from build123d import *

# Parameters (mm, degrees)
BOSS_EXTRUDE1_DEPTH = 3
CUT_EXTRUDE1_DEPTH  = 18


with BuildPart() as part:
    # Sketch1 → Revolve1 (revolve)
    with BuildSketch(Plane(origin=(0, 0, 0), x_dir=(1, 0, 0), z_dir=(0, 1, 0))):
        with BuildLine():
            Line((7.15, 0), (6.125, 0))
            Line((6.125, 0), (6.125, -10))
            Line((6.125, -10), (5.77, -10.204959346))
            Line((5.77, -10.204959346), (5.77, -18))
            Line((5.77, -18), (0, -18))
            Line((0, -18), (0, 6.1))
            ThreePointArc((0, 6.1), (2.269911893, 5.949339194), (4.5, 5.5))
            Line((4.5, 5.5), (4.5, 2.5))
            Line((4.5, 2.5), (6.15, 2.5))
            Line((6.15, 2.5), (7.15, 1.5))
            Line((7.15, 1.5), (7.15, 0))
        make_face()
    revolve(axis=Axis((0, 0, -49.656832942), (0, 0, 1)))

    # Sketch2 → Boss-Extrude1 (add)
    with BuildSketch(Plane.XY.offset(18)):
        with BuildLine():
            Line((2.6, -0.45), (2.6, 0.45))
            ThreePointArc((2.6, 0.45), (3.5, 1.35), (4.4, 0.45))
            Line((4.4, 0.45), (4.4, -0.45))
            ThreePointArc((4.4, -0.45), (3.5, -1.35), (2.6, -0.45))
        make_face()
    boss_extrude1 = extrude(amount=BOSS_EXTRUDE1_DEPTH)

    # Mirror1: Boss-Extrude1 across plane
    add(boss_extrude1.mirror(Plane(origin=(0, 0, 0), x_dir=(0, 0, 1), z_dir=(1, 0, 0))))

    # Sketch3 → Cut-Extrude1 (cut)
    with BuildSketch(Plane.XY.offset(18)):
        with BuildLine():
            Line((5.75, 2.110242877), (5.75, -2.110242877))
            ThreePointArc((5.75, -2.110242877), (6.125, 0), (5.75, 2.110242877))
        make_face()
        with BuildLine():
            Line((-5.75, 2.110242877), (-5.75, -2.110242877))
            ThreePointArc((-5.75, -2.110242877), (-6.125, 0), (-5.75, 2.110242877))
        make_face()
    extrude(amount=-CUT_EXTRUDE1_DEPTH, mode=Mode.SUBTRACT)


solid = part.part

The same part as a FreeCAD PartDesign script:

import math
import FreeCAD as App
import Part
import Sketcher
Q = App.Units.Quantity

doc = App.newDocument("Part")
body = doc.addObject("PartDesign::Body", "Body")

# Sketch on XZ plane
sketch1 = doc.addObject("Sketcher::SketchObject", "Sketch")
body.addObject(sketch1)
sketch1.AttachmentSupport = (doc.XZ_Plane, [""])
sketch1.MapMode = "FlatFace"
sketch1.addGeometry([
    Part.LineSegment(App.Vector(6.125, 0, 0), App.Vector(7.15, 0, 0)),  # 0
    Part.LineSegment(App.Vector(7.15, 0, 0), App.Vector(7.15, -1.5, 0)),  # 1
    Part.LineSegment(App.Vector(7.15, -1.5, 0), App.Vector(6.15, -2.5, 0)),  # 2
    Part.LineSegment(App.Vector(6.15, -2.5, 0), App.Vector(4.5, -2.5, 0)),  # 3
    Part.LineSegment(App.Vector(4.5, -2.5, 0), App.Vector(4.5, -5.5, 0)),  # 4
    Part.ArcOfCircle(Part.Circle(App.Vector(0, 11.075, 0), App.Vector(0, 0, 1), 17.175), math.radians(-90), math.radians(-74.810713)),  # 5
    Part.LineSegment(App.Vector(0, -6.1, 0), App.Vector(0, 18, 0)),  # 6
    Part.LineSegment(App.Vector(0, 18, 0), App.Vector(5.77, 18, 0)),  # 7
    Part.LineSegment(App.Vector(5.77, 18, 0), App.Vector(5.77, 10.204959, 0)),  # 8
    Part.LineSegment(App.Vector(5.77, 10.204959, 0), App.Vector(6.125, 10, 0)),  # 9
    Part.LineSegment(App.Vector(6.125, 10, 0), App.Vector(6.125, 0, 0)),  # 10
], False)
sketch1.addConstraint([
    Sketcher.Constraint("Coincident", 0, 2, 1, 1),
    Sketcher.Constraint("Coincident", 1, 2, 2, 1),
    Sketcher.Constraint("Coincident", 2, 2, 3, 1),
    Sketcher.Constraint("Coincident", 3, 2, 4, 1),
    Sketcher.Constraint("Coincident", 4, 2, 5, 2),
    Sketcher.Constraint("Coincident", 5, 1, 6, 1),
    Sketcher.Constraint("Coincident", 6, 2, 7, 1),
    Sketcher.Constraint("Coincident", 7, 2, 8, 1),
    Sketcher.Constraint("Coincident", 8, 2, 9, 1),
    Sketcher.Constraint("Coincident", 9, 2, 10, 1),
    Sketcher.Constraint("Coincident", 10, 2, 0, 1),
    Sketcher.Constraint("Horizontal", 0),
    Sketcher.Constraint("Vertical", 1),
    Sketcher.Constraint("Horizontal", 3),
    Sketcher.Constraint("Vertical", 4),
    Sketcher.Constraint("Vertical", 6),
    Sketcher.Constraint("Horizontal", 7),
    Sketcher.Constraint("Vertical", 8),
    Sketcher.Constraint("Vertical", 10),
    Sketcher.Constraint("PointOnObject", 5, 3, -2),
    Sketcher.Constraint("PointOnObject", 0, 2, -1),
    Sketcher.Constraint("PointOnObject", 5, 1, -2),
    Sketcher.Constraint("DistanceY", 4, 2, 4, 1, 3.0),
    Sketcher.Constraint("DistanceY", 10, 2, 10, 1, 10.0),
    Sketcher.Constraint("Angle", 2, Q("-135 deg")),
    Sketcher.Constraint("Angle", 9, Q("-30 deg")),
    Sketcher.Constraint("DistanceY", 1, 2, 1, 1, 1.5),
    Sketcher.Constraint("DistanceY", 6, 1, 6, 2, 24.1),
    Sketcher.Constraint("DistanceY", -1, 1, 6, 2, 18.0),
    Sketcher.Constraint("Radius", 5, 17.175),
    Sketcher.Constraint("DistanceX", 2, 2, 1, 2, 1.0),
    Sketcher.Constraint("DistanceX", 3, 2, 3, 1, 1.65),
    Sketcher.Constraint("DistanceX", 7, 1, 7, 2, 5.77),
    Sketcher.Constraint("DistanceX", 0, 1, 0, 2, 1.025),
])
revolution = doc.addObject("PartDesign::Revolution", "Revolution")
body.addObject(revolution)
revolution.Profile = sketch1
revolution.ReferenceAxis = (sketch1, ["V_Axis"])
revolution.Angle = 360

# Sketch on XY plane
sketch2 = doc.addObject("Sketcher::SketchObject", "Sketch001")
body.addObject(sketch2)
sketch2.AttachmentSupport = (doc.XY_Plane, [""])
sketch2.MapMode = "FlatFace"
sketch2.AttachmentOffset = App.Placement(App.Vector(0, 0, 18), App.Rotation())
sketch2.addGeometry([
    Part.LineSegment(App.Vector(2.6, 0.45, 0), App.Vector(2.6, -0.45, 0)),
    Part.ArcOfCircle(Part.Circle(App.Vector(3.5, -0.45, 0), App.Vector(0, 0, 1), 0.9), math.radians(180), math.radians(360)),
    Part.LineSegment(App.Vector(4.4, -0.45, 0), App.Vector(4.4, 0.45, 0)),
    Part.ArcOfCircle(Part.Circle(App.Vector(3.5, 0.45, 0), App.Vector(0, 0, 1), 0.9), math.radians(0), math.radians(180)),
], False)
sketch2.addConstraint([
    Sketcher.Constraint("Tangent", 0, 2, 1, 1),
    Sketcher.Constraint("Tangent", 1, 2, 2, 1),
    Sketcher.Constraint("Tangent", 2, 2, 3, 1),
    Sketcher.Constraint("Tangent", 3, 2, 0, 1),
    Sketcher.Constraint("Vertical", 0),
    Sketcher.Constraint("Vertical", 2),
    Sketcher.Constraint("Radius", 1, 0.9),
    Sketcher.Constraint("DistanceY", 0, 2, 0, 1, 0.9),
    Sketcher.Constraint("DistanceX", -1, 1, 1, 3, 3.5),
    Sketcher.Constraint("DistanceY", 1, 3, -1, 1, 0.45),
])
pad1 = doc.addObject("PartDesign::Pad", "Pad")
body.addObject(pad1)
pad1.Profile = sketch2
pad1.Length = 3
doc.recompute()

mirrored = doc.addObject("PartDesign::Mirrored", "Mirrored")
body.addObject(mirrored)
mirrored.Originals = [pad1]
mirrored.MirrorPlane = (doc.YZ_Plane, [""])
body.Tip = mirrored

# Sketch on XY plane
sketch3 = doc.addObject("Sketcher::SketchObject", "Sketch002")
body.addObject(sketch3)
sketch3.AttachmentSupport = (doc.XY_Plane, [""])
sketch3.MapMode = "FlatFace"
sketch3.AttachmentOffset = App.Placement(App.Vector(0, 0, 18), App.Rotation())
sketch3.addGeometry([
    Part.LineSegment(App.Vector(5.75, 2.110243, 0), App.Vector(5.75, -2.110243, 0)),
    Part.ArcOfCircle(Part.Circle(App.Vector(0, 0, 0), App.Vector(0, 0, 1), 6.125), math.radians(-20.153074), math.radians(20.153074)),
    Part.LineSegment(App.Vector(-5.75, -2.110243, 0), App.Vector(-5.75, 2.110243, 0)),
    Part.ArcOfCircle(Part.Circle(App.Vector(0, 0, 0), App.Vector(0, 0, 1), 6.125), math.radians(159.846926), math.radians(200.153074)),
], False)
sketch3.addConstraint([
    Sketcher.Constraint("Coincident", 0, 1, 1, 2),
    Sketcher.Constraint("Coincident", 1, 1, 0, 2),
    Sketcher.Constraint("Coincident", 2, 1, 3, 2),
    Sketcher.Constraint("Coincident", 3, 1, 2, 2),
    Sketcher.Constraint("Vertical", 0),
    Sketcher.Constraint("Vertical", 2),
    Sketcher.Constraint("Coincident", 1, 3, -1, 1),
    Sketcher.Constraint("Coincident", 3, 3, -1, 1),
    Sketcher.Constraint("Equal", 1, 3),
    Sketcher.Constraint("Horizontal", 1, 1, 2, 1),
    Sketcher.Constraint("Radius", 1, 6.125),
    Sketcher.Constraint("DistanceX", 2, 1, 1, 1, 11.5),
])
pocket1 = doc.addObject("PartDesign::Pocket", "Pocket")
body.addObject(pocket1)
pocket1.Profile = sketch3
pocket1.Length = 18

doc.recompute()
